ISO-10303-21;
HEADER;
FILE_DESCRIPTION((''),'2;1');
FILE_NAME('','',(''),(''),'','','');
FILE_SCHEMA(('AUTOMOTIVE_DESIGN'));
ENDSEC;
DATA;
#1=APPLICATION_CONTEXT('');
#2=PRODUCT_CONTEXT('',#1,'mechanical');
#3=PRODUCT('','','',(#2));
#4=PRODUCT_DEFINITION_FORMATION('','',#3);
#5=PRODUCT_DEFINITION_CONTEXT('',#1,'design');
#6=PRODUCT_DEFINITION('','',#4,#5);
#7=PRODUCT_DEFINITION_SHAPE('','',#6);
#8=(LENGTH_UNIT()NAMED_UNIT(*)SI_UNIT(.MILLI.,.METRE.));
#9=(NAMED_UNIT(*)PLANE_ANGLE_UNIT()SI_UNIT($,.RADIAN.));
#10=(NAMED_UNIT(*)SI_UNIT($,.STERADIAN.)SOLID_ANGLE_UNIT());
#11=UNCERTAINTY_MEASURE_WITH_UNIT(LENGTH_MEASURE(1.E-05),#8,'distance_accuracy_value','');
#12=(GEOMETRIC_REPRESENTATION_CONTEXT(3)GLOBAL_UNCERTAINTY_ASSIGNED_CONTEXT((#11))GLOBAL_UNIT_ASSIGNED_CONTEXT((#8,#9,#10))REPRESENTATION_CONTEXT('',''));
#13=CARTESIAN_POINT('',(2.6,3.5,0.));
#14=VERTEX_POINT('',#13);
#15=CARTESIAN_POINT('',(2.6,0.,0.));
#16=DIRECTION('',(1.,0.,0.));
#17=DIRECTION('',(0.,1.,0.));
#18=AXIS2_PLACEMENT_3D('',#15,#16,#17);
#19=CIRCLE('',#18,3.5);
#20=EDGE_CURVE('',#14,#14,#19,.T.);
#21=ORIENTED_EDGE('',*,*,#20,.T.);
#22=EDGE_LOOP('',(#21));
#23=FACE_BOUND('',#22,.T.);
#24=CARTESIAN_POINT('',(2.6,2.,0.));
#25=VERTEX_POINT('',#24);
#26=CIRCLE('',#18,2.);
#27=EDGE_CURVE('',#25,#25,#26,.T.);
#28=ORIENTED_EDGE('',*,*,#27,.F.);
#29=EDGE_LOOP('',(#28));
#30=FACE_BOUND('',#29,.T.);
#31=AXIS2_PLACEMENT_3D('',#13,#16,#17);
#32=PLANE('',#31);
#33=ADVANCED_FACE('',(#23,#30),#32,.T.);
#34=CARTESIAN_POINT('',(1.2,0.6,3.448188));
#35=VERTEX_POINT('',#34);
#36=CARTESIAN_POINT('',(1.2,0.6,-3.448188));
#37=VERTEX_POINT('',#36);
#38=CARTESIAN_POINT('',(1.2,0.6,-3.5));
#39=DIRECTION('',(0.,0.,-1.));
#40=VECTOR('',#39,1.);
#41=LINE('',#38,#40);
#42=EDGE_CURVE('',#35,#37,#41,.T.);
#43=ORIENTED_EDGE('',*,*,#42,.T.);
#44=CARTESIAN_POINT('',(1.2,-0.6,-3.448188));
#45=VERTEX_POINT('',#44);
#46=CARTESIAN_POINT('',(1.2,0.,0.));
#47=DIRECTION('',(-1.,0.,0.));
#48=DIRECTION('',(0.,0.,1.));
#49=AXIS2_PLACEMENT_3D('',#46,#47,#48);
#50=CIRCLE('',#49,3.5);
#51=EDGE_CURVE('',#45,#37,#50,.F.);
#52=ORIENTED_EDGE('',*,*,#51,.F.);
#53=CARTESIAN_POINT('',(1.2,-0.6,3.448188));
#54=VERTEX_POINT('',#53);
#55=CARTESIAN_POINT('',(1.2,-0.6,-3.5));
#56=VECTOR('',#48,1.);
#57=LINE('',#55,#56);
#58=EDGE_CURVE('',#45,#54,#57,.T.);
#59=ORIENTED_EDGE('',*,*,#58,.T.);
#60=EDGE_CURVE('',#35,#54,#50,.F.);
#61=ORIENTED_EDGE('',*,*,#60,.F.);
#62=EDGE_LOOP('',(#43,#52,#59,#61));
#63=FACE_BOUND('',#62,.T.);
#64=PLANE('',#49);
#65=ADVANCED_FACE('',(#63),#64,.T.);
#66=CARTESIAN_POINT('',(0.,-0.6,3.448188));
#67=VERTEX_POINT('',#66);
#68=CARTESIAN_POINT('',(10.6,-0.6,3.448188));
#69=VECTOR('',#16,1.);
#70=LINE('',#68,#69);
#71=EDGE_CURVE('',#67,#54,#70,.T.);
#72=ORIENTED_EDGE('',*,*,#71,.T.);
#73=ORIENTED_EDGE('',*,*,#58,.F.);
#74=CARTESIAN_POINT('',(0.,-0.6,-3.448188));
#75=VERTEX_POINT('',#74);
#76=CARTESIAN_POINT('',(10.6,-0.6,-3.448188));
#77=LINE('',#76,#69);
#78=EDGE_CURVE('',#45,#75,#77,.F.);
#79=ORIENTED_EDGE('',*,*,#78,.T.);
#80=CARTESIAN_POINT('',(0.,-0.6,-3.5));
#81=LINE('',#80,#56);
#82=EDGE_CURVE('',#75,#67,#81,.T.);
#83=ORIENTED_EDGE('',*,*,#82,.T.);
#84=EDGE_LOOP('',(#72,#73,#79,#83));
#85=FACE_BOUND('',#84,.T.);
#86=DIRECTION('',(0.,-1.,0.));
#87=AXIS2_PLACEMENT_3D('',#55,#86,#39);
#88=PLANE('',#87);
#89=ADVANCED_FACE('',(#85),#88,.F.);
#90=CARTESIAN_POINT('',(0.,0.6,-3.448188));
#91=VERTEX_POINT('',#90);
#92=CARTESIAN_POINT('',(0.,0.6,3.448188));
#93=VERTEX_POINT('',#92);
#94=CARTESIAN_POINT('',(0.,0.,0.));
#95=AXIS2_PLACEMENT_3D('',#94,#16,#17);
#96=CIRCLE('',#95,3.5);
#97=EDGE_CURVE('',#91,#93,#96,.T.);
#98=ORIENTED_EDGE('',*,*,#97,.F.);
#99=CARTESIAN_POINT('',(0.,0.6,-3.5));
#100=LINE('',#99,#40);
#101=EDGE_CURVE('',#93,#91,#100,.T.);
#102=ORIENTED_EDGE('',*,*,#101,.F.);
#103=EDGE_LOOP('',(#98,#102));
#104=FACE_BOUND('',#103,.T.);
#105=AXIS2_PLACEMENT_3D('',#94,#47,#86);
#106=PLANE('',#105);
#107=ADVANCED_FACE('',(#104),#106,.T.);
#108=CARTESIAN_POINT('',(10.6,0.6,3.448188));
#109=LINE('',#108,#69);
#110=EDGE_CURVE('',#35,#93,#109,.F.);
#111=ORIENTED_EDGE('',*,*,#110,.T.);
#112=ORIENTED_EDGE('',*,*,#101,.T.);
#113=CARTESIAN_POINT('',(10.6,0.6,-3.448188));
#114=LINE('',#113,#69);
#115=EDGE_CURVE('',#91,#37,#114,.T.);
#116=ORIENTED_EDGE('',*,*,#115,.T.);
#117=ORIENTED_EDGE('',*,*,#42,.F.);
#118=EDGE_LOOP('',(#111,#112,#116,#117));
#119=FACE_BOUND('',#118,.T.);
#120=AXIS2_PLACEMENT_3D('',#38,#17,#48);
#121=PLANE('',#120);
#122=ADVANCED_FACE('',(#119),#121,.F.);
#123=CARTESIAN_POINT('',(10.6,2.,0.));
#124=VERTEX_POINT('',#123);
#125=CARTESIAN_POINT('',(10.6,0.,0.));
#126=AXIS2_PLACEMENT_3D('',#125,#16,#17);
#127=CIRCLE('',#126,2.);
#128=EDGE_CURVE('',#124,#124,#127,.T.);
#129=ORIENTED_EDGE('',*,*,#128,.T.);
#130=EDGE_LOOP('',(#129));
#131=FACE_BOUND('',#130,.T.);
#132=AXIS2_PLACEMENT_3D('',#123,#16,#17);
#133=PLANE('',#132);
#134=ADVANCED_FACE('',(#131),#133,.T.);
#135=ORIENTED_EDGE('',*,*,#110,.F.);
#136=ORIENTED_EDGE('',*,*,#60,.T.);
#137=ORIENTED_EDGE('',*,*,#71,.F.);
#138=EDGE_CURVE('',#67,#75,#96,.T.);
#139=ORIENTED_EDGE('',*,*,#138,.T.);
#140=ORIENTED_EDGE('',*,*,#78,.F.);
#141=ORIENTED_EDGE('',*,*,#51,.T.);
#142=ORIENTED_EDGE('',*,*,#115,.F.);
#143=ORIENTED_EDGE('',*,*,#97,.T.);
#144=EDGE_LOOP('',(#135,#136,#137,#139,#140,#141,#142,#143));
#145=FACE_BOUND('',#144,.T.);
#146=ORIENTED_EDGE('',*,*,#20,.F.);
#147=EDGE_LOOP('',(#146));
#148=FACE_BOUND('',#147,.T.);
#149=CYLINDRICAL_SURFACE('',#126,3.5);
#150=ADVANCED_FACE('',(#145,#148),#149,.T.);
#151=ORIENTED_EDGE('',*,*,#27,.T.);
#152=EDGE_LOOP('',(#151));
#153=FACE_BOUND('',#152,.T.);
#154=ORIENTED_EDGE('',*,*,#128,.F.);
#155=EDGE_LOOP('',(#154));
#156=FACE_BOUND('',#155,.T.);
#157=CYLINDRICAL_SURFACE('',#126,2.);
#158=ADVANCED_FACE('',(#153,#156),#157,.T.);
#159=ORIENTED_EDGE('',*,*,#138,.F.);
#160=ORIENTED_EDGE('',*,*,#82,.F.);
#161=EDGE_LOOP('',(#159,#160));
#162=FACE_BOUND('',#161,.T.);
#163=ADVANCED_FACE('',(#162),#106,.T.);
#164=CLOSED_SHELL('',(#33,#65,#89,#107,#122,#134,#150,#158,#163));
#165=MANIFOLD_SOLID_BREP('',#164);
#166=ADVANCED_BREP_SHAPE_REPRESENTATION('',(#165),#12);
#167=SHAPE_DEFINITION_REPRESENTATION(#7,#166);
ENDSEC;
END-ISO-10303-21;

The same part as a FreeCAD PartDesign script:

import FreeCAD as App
import Part
import Sketcher
from FreeCAD import Vector

doc = App.newDocument("Part")
body = doc.addObject("PartDesign::Body", "Body")

# Sketch on XY plane
sketch1 = doc.addObject("Sketcher::SketchObject", "Sketch")
body.addObject(sketch1)
sketch1.AttachmentSupport = (doc.XY_Plane, [""])
sketch1.MapMode = "FlatFace"
sketch1.addGeometry(Part.LineSegment(Vector(0, 3.5, 0), Vector(0, 0, 0)), False)
sketch1.addGeometry(Part.LineSegment(Vector(0, 0, 0), Vector(10.6, 0, 0)), False)
sketch1.addGeometry(Part.LineSegment(Vector(10.6, 0, 0), Vector(10.6, 2, 0)), False)
sketch1.addGeometry(Part.LineSegment(Vector(10.6, 2, 0), Vector(2.6, 2, 0)), False)
sketch1.addGeometry(Part.LineSegment(Vector(2.6, 2, 0), Vector(2.6, 3.5, 0)), False)
sketch1.addGeometry(Part.LineSegment(Vector(2.6, 3.5, 0), Vector(0, 3.5, 0)), False)
sketch1.addConstraint(Sketcher.Constraint("Coincident", 0, 2, 1, 1))
sketch1.addConstraint(Sketcher.Constraint("Coincident", 1, 2, 2, 1))
sketch1.addConstraint(Sketcher.Constraint("Coincident", 2, 2, 3, 1))
sketch1.addConstraint(Sketcher.Constraint("Coincident", 3, 2, 4, 1))
sketch1.addConstraint(Sketcher.Constraint("Coincident", 4, 2, 5, 1))
sketch1.addConstraint(Sketcher.Constraint("Coincident", 5, 2, 0, 1))
sketch1.addConstraint(Sketcher.Constraint("Vertical", 0))
sketch1.addConstraint(Sketcher.Constraint("Horizontal", 1))
sketch1.addConstraint(Sketcher.Constraint("Vertical", 2))
sketch1.addConstraint(Sketcher.Constraint("Horizontal", 3))
sketch1.addConstraint(Sketcher.Constraint("Vertical", 4))
sketch1.addConstraint(Sketcher.Constraint("Horizontal", 5))
sketch1.addConstraint(Sketcher.Constraint("Coincident", 0, 2, -1, 1))
sketch1.addConstraint(Sketcher.Constraint("DistanceX", 3, 2, 3, 1, 8.0))
sketch1.addConstraint(Sketcher.Constraint("DistanceY", 2, 1, 2, 2, 2.0))
sketch1.addConstraint(Sketcher.Constraint("DistanceX", 1, 1, 1, 2, 10.6))
sketch1.addConstraint(Sketcher.Constraint("DistanceY", 0, 2, 0, 1, 3.5))
revolution = doc.addObject("PartDesign::Revolution", "Revolution")
body.addObject(revolution)
revolution.Profile = sketch1
revolution.ReferenceAxis = (sketch1, ["H_Axis"])
revolution.Angle = 360

# Sketch on YZ plane
sketch2 = doc.addObject("Sketcher::SketchObject", "Sketch001")
body.addObject(sketch2)
sketch2.AttachmentSupport = (doc.YZ_Plane, [""])
sketch2.MapMode = "FlatFace"
sketch2.addGeometry(Part.LineSegment(Vector(0.6, -3.5, 0), Vector(-0.6, -3.5, 0)), False)
sketch2.addGeometry(Part.LineSegment(Vector(-0.6, -3.5, 0), Vector(-0.6, 3.5, 0)), False)
sketch2.addGeometry(Part.LineSegment(Vector(-0.6, 3.5, 0), Vector(0.6, 3.5, 0)), False)
sketch2.addGeometry(Part.LineSegment(Vector(0.6, 3.5, 0), Vector(0.6, -3.5, 0)), False)
sketch2.addConstraint(Sketcher.Constraint("Coincident", 0, 2, 1, 1))
sketch2.addConstraint(Sketcher.Constraint("Coincident", 1, 2, 2, 1))
sketch2.addConstraint(Sketcher.Constraint("Coincident", 2, 2, 3, 1))
sketch2.addConstraint(Sketcher.Constraint("Coincident", 3, 2, 0, 1))
sketch2.addConstraint(Sketcher.Constraint("Horizontal", 0))
sketch2.addConstraint(Sketcher.Constraint("Vertical", 1))
sketch2.addConstraint(Sketcher.Constraint("Horizontal", 2))
sketch2.addConstraint(Sketcher.Constraint("Vertical", 3))
sketch2.addConstraint(Sketcher.Constraint("Symmetric", 0, 2, 2, 2, -1, 1))
sketch2.addConstraint(Sketcher.Constraint("DistanceY", 1, 1, 1, 2, 7.0))
sketch2.addConstraint(Sketcher.Constraint("DistanceX", 0, 2, 0, 1, 1.2))
pocket1 = doc.addObject("PartDesign::Pocket", "Pocket")
body.addObject(pocket1)
pocket1.Profile = sketch2
pocket1.Length = 1.2
pocket1.Reversed = True

doc.recompute()
